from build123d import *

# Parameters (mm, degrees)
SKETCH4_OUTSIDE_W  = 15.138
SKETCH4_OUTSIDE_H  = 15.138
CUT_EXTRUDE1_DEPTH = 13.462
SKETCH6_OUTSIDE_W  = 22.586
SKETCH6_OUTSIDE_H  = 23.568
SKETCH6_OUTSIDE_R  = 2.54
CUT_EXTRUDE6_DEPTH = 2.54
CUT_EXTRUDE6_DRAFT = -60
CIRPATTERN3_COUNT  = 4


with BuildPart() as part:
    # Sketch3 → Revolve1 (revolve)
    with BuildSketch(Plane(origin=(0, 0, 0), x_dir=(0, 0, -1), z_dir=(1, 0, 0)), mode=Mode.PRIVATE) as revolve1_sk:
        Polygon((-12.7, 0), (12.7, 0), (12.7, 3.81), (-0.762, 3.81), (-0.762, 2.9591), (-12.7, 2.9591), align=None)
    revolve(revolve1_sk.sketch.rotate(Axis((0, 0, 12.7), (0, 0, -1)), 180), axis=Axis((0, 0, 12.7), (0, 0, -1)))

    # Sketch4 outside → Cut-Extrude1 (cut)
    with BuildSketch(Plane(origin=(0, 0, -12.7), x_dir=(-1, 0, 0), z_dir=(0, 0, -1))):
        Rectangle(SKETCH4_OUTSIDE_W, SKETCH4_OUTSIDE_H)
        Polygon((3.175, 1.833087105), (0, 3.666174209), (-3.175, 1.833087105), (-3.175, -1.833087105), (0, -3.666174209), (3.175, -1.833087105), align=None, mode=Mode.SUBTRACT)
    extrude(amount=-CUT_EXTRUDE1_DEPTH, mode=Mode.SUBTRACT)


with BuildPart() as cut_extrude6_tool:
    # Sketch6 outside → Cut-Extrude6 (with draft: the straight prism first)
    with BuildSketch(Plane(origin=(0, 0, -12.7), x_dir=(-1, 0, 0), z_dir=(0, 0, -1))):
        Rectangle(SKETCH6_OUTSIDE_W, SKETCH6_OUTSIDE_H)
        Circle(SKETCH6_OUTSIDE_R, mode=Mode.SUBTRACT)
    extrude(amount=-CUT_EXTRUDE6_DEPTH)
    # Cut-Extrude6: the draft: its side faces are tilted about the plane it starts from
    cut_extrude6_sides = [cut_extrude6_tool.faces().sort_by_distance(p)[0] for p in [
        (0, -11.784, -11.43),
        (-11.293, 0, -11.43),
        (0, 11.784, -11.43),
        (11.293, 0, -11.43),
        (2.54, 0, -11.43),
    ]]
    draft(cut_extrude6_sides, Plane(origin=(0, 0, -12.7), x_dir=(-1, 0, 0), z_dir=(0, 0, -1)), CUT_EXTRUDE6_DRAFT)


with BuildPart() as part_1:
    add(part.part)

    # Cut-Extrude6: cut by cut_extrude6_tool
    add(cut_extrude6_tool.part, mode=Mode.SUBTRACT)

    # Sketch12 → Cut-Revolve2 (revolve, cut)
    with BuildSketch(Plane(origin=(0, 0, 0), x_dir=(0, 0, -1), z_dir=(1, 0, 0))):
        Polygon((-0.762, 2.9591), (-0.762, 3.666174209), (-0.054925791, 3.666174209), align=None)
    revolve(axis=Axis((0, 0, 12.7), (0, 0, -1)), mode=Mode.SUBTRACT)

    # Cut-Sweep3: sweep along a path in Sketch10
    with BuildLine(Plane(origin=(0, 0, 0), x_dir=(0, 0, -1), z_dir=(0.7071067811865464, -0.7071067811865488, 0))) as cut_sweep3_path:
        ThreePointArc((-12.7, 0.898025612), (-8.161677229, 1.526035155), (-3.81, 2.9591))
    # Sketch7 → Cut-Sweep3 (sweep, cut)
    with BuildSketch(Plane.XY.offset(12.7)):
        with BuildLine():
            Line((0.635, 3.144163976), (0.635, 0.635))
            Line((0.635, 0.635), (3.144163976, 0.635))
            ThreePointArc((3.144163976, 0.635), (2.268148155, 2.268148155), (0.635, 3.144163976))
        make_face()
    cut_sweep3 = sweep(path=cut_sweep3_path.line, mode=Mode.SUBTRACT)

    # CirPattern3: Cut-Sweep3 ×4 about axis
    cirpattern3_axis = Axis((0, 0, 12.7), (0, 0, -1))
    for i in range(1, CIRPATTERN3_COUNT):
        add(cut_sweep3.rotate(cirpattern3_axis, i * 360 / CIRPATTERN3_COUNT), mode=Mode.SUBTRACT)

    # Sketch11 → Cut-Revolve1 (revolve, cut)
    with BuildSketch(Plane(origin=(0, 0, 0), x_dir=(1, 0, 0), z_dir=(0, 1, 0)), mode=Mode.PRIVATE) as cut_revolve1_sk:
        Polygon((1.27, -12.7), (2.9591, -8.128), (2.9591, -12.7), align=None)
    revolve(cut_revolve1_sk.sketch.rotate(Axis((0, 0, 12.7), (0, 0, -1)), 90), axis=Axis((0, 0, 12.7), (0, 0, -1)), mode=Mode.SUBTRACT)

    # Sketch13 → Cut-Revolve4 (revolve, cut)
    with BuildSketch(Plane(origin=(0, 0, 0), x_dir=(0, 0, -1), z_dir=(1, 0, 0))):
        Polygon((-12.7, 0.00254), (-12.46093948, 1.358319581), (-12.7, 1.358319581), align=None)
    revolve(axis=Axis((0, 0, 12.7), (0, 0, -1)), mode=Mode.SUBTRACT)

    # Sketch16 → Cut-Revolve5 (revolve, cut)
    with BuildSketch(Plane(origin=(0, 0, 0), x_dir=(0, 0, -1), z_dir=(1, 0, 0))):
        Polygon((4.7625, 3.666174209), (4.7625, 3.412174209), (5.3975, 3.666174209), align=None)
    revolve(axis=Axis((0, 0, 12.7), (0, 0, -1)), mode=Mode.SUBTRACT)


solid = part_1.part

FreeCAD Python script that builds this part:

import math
import FreeCAD as App
import Part
import Sketcher
from FreeCAD import Vector
Q = App.Units.Quantity


def faces_at(feature, points):
    """Names of the faces that lie closest to the given points."""
    faces = feature.Shape.Faces
    near = lambda p: min(range(len(faces)), key=lambda i: faces[i].distToShape(Part.Vertex(*p))[0])
    return sorted({f"Face{near(p) + 1}" for p in points})


def add_polygon(sketch, points):
    """Adds a closed chain of lines whose ends are joined by coincident constraints."""
    first, n = sketch.GeometryCount, len(points)
    for a, b in zip(points, points[1:] + points[:1]):
        sketch.addGeometry(Part.LineSegment(App.Vector(*a, 0), App.Vector(*b, 0)), False)
    for i in range(n):
        sketch.addConstraint(Sketcher.Constraint("Coincident", first + i, 2, first + (i + 1) % n, 1))

doc = App.newDocument("Part")
body = doc.addObject("PartDesign::Body", "Body")

sketch1 = doc.addObject("Sketcher::SketchObject", "Sketch")
body.addObject(sketch1)
sketch1.AttachmentSupport = (doc.YZ_Plane, [""])
sketch1.MapMode = "FlatFace"
add_polygon(sketch1, [(0, 12.7), (0, -12.7), (3.8, -12.7), (3.8, 0.8), (3, 0.8), (3, 12.7)])
sketch1.addConstraint(Sketcher.Constraint("Vertical", 0))
sketch1.addConstraint(Sketcher.Constraint("Horizontal", 1))
sketch1.addConstraint(Sketcher.Constraint("Vertical", 2))
sketch1.addConstraint(Sketcher.Constraint("Horizontal", 3))
sketch1.addConstraint(Sketcher.Constraint("Vertical", 4))
sketch1.addConstraint(Sketcher.Constraint("Horizontal", 5))
sketch1.addConstraint(Sketcher.Constraint("Symmetric", 0, 2, 5, 2, -1, 1))
sketch1.addConstraint(Sketcher.Constraint("DistanceY", 0, 2, 0, 1, Q("1 in")))
sketch1.addConstraint(Sketcher.Constraint("DistanceX", 1, 1, 1, 2, Q("0.15 in")))
sketch1.addConstraint(Sketcher.Constraint("DistanceY", 2, 1, 2, 2, Q("0.53 in")))
sketch1.addConstraint(Sketcher.Constraint("DistanceX", 3, 2, 3, 1, Q("0.0335 in")))
revolution = doc.addObject("PartDesign::Revolution", "Revolution")
body.addObject(revolution)
revolution.Profile = sketch1
revolution.ReferenceAxis = (sketch1, ["V_Axis"])
revolution.Angle = 360

sketch2 = doc.addObject("Sketcher::SketchObject", "Sketch001")
body.addObject(sketch2)
sketch2.AttachmentSupport = (doc.XY_Plane, [""])
sketch2.MapMode = "FlatFace"
sketch2.AttachmentOffset = App.Placement(Vector(0, 0, -0.5 * 25.4), App.Rotation())
add_polygon(sketch2, [(7.6, 7.6), (7.6, -7.6), (-7.6, -7.6), (-7.6, 7.6)])
add_polygon(sketch2, [(0, 3.7), (-3.2, 1.8), (-3.2, -1.8), (0, -3.7), (3.2, -1.8), (3.2, 1.8)])
sketch2.addConstraint(Sketcher.Constraint("Vertical", 0))
sketch2.addConstraint(Sketcher.Constraint("Horizontal", 1))
sketch2.addConstraint(Sketcher.Constraint("Vertical", 2))
sketch2.addConstraint(Sketcher.Constraint("Horizontal", 3))
sketch2.addConstraint(Sketcher.Constraint("Vertical", 5))
sketch2.addConstraint(Sketcher.Constraint("Vertical", 8))
sketch2.addConstraint(Sketcher.Constraint("Symmetric", 0, 2, 2, 2, -1, 1))
sketch2.addConstraint(Sketcher.Constraint("Symmetric", 4, 2, 7, 2, -1, 1))
sketch2.addConstraint(Sketcher.Constraint("Symmetric", 6, 2, 9, 2, -1, 1))
sketch2.addConstraint(Sketcher.Constraint("PointOnObject", 6, 2, -2))
sketch2.addConstraint(Sketcher.Constraint("Parallel", 6, 9))
sketch2.addConstraint(Sketcher.Constraint("Horizontal", 5, 2, 7, 2))
sketch2.addConstraint(Sketcher.Constraint("Equal", 3, 0))
sketch2.addConstraint(Sketcher.Constraint("Angle", 4, Q("-150 deg")))
sketch2.addConstraint(Sketcher.Constraint("DistanceX", 5, 2, 7, 2, Q("0.25 in")))
sketch2.addConstraint(Sketcher.Constraint("DistanceX", 1, 2, 1, 1, Q("15.138 mm")))
sketch2.addConstraint(Sketcher.Constraint("DistanceY", 5, 2, 5, 1, Q("3.666174 mm")))
pocket1 = doc.addObject("PartDesign::Pocket", "Pocket")
body.addObject(pocket1)
pocket1.Profile = sketch2
pocket1.Length = Q("0.53 in")
pocket1.Reversed = True
body2 = doc.addObject("PartDesign::Body", "Body001")

sketch3 = doc.addObject("Sketcher::SketchObject", "Sketch002")
body2.addObject(sketch3)
sketch3.AttachmentSupport = (doc.getObject("XY_Plane001"), [""])
sketch3.MapMode = "FlatFace"
sketch3.AttachmentOffset = App.Placement(Vector(0, 0, -0.5 * 25.4), App.Rotation())
add_polygon(sketch3, [(11.3, 11.8), (11.3, -11.8), (-11.3, -11.8), (-11.3, 11.8)])
sketch3.addGeometry(Part.Circle(Vector(0, 0, 0), Vector(0, 0, 1), 2.5), False)
sketch3.addConstraint(Sketcher.Constraint("Vertical", 0))
sketch3.addConstraint(Sketcher.Constraint("Horizontal", 1))
sketch3.addConstraint(Sketcher.Constraint("Vertical", 2))
sketch3.addConstraint(Sketcher.Constraint("Horizontal", 3))
sketch3.addConstraint(Sketcher.Constraint("Coincident", 4, 3, -1, 1))
sketch3.addConstraint(Sketcher.Constraint("Symmetric", 0, 2, 2, 2, -1, 1))
sketch3.addConstraint(Sketcher.Constraint("Diameter", 4, Q("0.2 in")))
sketch3.addConstraint(Sketcher.Constraint("DistanceX", 1, 2, 1, 1, Q("22.586 mm")))
sketch3.addConstraint(Sketcher.Constraint("DistanceY", 0, 2, 0, 1, Q("23.568 mm")))
pad1 = doc.addObject("PartDesign::Pad", "Pad")
body2.addObject(pad1)
pad1.Profile = sketch3
pad1.Length = Q("0.1 in")
doc.recompute()

datumplane = doc.addObject("PartDesign::Plane", "DatumPlane")
body2.addObject(datumplane)
datumplane.AttachmentSupport = (doc.getObject("XY_Plane001"), [""])
datumplane.MapMode = "FlatFace"
datumplane.AttachmentOffset = App.Placement(Vector(0, 0, -0.5 * 25.4), App.Rotation())
draft = doc.addObject("PartDesign::Draft", "Draft")
body2.addObject(draft)
draft.Base = (pad1, faces_at(pad1, [
    (0, -11.784, -11.43),
    (-11.293, 0, -11.43),
    (0, 11.784, -11.43),
    (11.293, 0, -11.43),
    (2.54, 0, -11.43),
]))
draft.NeutralPlane = (datumplane, [""])
draft.Angle = 60
draft.Reversed = False
doc.recompute()

boolean = doc.addObject("PartDesign::Boolean", "Boolean")
body.addObject(boolean)
boolean.Type = "Cut"
boolean.addObjects([body2])

sketch4 = doc.addObject("Sketcher::SketchObject", "Sketch003")
body.addObject(sketch4)
sketch4.AttachmentSupport = (doc.YZ_Plane, [""])
sketch4.MapMode = "FlatFace"
add_polygon(sketch4, [(3.7, 0.8), (3, 0.8), (3.7, 0.1)])
sketch4.addConstraint(Sketcher.Constraint("Horizontal", 0))
sketch4.addConstraint(Sketcher.Constraint("Vertical", 2))
sketch4.addConstraint(Sketcher.Constraint("Equal", 0, 2))
sketch4.addConstraint(Sketcher.Constraint("DistanceY", -1, 1, 0, 2, Q("0.03 in")))
sketch4.addConstraint(Sketcher.Constraint("DistanceX", -1, 1, 0, 2, Q("0.1165 in")))
sketch4.addConstraint(Sketcher.Constraint("DistanceX", 0, 2, 0, 1, Q("0.707074 mm")))
groove = doc.addObject("PartDesign::Groove", "Groove")
body.addObject(groove)
groove.Profile = sketch4
groove.ReferenceAxis = (sketch4, ["V_Axis"])
groove.Angle = 360

sketch5 = doc.addObject("Sketcher::SketchObject", "Sketch004")
body.addObject(sketch5)
sketch5.AttachmentSupport = (doc.XY_Plane, [""])
sketch5.MapMode = "FlatFace"
sketch5.AttachmentOffset = App.Placement(Vector(0, 0, 0.5 * 25.4), App.Rotation())
sketch5.addGeometry(Part.LineSegment(Vector(0.6, 3.1, 0), Vector(0.6, 0.6, 0)), False)
sketch5.addGeometry(Part.LineSegment(Vector(0.6, 0.6, 0), Vector(3.1, 0.6, 0)), False)
sketch5.addGeometry(Part.ArcOfCircle(Part.Circle(Vector(0, 0, 0), Vector(0, 0, 1), 3.2), math.radians(11), math.radians(79)), False)
sketch5.addConstraint(Sketcher.Constraint("Coincident", 0, 2, 1, 1))
sketch5.addConstraint(Sketcher.Constraint("Coincident", 1, 2, 2, 1))
sketch5.addConstraint(Sketcher.Constraint("Coincident", 2, 2, 0, 1))
sketch5.addConstraint(Sketcher.Constraint("Vertical", 0))
sketch5.addConstraint(Sketcher.Constraint("Horizontal", 1))
sketch5.addConstraint(Sketcher.Constraint("Coincident", 2, 3, -1, 1))
sketch5.addConstraint(Sketcher.Constraint("Equal", 1, 0))
sketch5.addConstraint(Sketcher.Constraint("DistanceX", -1, 1, 0, 2, Q("0.025 in")))
sketch5.addConstraint(Sketcher.Constraint("Radius", 2, Q("3.207646 mm")))

sketch6 = doc.addObject("Sketcher::SketchObject", "Sketch005")
body.addObject(sketch6)
sketch6.Placement = App.Placement(Vector(0, 0, 0), App.Rotation(Vector(0.707106781, 0.707106781, 0), Vector(0, 0, 0.999999999), Vector(0.707106781, -0.707106781, 0), "ZXY"))
sketch6.addGeometry(Part.ArcOfCircle(Part.Circle(Vector(26, 14, 0), Vector(0, 0, 1), 25), math.radians(-177), math.radians(-157)), False)
sketch6.addConstraint(Sketcher.Constraint("Radius", 0, Q("1 in")))
sketch6.addConstraint(Sketcher.Constraint("DistanceY", -1, 1, 0, 1, Q("0.5 in")))
sketch6.addConstraint(Sketcher.Constraint("DistanceY", -1, 1, 0, 2, Q("0.15 in")))
sketch6.addConstraint(Sketcher.Constraint("DistanceX", -1, 1, 0, 2, Q("0.1165 in")))
sketch6.addConstraint(Sketcher.Constraint("DistanceX", -1, 1, 0, 3, Q("26.269743 mm")))
doc.recompute()

subtractivepipe = doc.addObject("PartDesign::SubtractivePipe", "SubtractivePipe")
body.addObject(subtractivepipe)
subtractivepipe.Profile = sketch5
subtractivepipe.Spine = (sketch6, ["Edge1"])
doc.recompute()

polarpattern = doc.addObject("PartDesign::PolarPattern", "PolarPattern")
body.addObject(polarpattern)
polarpattern.Originals = [subtractivepipe]
polarpattern.Axis = (doc.Z_Axis, [""])
polarpattern.Angle = 360
polarpattern.Occurrences = 4
body.Tip = polarpattern

sketch7 = doc.addObject("Sketcher::SketchObject", "Sketch006")
body.addObject(sketch7)
sketch7.AttachmentSupport = (doc.XZ_Plane, [""])
sketch7.MapMode = "FlatFace"
add_polygon(sketch7, [(3, 8.1), (1.3, 12.7), (3, 12.7)])
sketch7.addConstraint(Sketcher.Constraint("Horizontal", 1))
sketch7.addConstraint(Sketcher.Constraint("Vertical", 2))
sketch7.addConstraint(Sketcher.Constraint("DistanceY", 2, 2, 2, 1, Q("0.18 in")))
sketch7.addConstraint(Sketcher.Constraint("DistanceY", -1, 1, 0, 2, Q("0.5 in")))
sketch7.addConstraint(Sketcher.Constraint("DistanceX", -1, 1, 0, 2, Q("0.05 in")))
sketch7.addConstraint(Sketcher.Constraint("DistanceX", 1, 1, 1, 2, Q("0.0665 in")))
groove2 = doc.addObject("PartDesign::Groove", "Groove001")
body.addObject(groove2)
groove2.Profile = sketch7
groove2.ReferenceAxis = (sketch7, ["V_Axis"])
groove2.Angle = 360

sketch8 = doc.addObject("Sketcher::SketchObject", "Sketch007")
body.addObject(sketch8)
sketch8.AttachmentSupport = (doc.YZ_Plane, [""])
sketch8.MapMode = "FlatFace"
add_polygon(sketch8, [(0, 12.7), (1.36, 12.46), (1.36, 12.7)])
sketch8.addConstraint(Sketcher.Constraint("Vertical", 1))
sketch8.addConstraint(Sketcher.Constraint("Horizontal", 2))
sketch8.addConstraint(Sketcher.Constraint("Angle", 0, Q("-10 deg")))
sketch8.addConstraint(Sketcher.Constraint("DistanceY", -1, 1, 1, 2, Q("0.5 in")))
sketch8.addConstraint(Sketcher.Constraint("DistanceX", -1, 1, 2, 2, Q("0.0001 in")))
sketch8.addConstraint(Sketcher.Constraint("DistanceX", 2, 2, 2, 1, Q("1.35578 mm")))
groove3 = doc.addObject("PartDesign::Groove", "Groove002")
body.addObject(groove3)
groove3.Profile = sketch8
groove3.ReferenceAxis = (sketch8, ["V_Axis"])
groove3.Angle = 360

sketch9 = doc.addObject("Sketcher::SketchObject", "Sketch008")
body.addObject(sketch9)
sketch9.AttachmentSupport = (doc.YZ_Plane, [""])
sketch9.MapMode = "FlatFace"
add_polygon(sketch9, [(3.67, -4.76), (3.41, -4.76), (3.67, -5.4)])
sketch9.addConstraint(Sketcher.Constraint("Horizontal", 0))
sketch9.addConstraint(Sketcher.Constraint("Vertical", 2))
sketch9.addConstraint(Sketcher.Constraint("DistanceX", 0, 2, 0, 1, Q("0.01 in")))
sketch9.addConstraint(Sketcher.Constraint("DistanceY", 2, 1, 2, 2, Q("0.025 in")))
sketch9.addConstraint(Sketcher.Constraint("DistanceY", 0, 2, -1, 1, Q("0.1875 in")))
sketch9.addConstraint(Sketcher.Constraint("DistanceX", -1, 1, 0, 2, Q("3.412174 mm")))
groove4 = doc.addObject("PartDesign::Groove", "Groove003")
body.addObject(groove4)
groove4.Profile = sketch9
groove4.ReferenceAxis = (sketch9, ["V_Axis"])
groove4.Angle = 360

doc.recompute()
